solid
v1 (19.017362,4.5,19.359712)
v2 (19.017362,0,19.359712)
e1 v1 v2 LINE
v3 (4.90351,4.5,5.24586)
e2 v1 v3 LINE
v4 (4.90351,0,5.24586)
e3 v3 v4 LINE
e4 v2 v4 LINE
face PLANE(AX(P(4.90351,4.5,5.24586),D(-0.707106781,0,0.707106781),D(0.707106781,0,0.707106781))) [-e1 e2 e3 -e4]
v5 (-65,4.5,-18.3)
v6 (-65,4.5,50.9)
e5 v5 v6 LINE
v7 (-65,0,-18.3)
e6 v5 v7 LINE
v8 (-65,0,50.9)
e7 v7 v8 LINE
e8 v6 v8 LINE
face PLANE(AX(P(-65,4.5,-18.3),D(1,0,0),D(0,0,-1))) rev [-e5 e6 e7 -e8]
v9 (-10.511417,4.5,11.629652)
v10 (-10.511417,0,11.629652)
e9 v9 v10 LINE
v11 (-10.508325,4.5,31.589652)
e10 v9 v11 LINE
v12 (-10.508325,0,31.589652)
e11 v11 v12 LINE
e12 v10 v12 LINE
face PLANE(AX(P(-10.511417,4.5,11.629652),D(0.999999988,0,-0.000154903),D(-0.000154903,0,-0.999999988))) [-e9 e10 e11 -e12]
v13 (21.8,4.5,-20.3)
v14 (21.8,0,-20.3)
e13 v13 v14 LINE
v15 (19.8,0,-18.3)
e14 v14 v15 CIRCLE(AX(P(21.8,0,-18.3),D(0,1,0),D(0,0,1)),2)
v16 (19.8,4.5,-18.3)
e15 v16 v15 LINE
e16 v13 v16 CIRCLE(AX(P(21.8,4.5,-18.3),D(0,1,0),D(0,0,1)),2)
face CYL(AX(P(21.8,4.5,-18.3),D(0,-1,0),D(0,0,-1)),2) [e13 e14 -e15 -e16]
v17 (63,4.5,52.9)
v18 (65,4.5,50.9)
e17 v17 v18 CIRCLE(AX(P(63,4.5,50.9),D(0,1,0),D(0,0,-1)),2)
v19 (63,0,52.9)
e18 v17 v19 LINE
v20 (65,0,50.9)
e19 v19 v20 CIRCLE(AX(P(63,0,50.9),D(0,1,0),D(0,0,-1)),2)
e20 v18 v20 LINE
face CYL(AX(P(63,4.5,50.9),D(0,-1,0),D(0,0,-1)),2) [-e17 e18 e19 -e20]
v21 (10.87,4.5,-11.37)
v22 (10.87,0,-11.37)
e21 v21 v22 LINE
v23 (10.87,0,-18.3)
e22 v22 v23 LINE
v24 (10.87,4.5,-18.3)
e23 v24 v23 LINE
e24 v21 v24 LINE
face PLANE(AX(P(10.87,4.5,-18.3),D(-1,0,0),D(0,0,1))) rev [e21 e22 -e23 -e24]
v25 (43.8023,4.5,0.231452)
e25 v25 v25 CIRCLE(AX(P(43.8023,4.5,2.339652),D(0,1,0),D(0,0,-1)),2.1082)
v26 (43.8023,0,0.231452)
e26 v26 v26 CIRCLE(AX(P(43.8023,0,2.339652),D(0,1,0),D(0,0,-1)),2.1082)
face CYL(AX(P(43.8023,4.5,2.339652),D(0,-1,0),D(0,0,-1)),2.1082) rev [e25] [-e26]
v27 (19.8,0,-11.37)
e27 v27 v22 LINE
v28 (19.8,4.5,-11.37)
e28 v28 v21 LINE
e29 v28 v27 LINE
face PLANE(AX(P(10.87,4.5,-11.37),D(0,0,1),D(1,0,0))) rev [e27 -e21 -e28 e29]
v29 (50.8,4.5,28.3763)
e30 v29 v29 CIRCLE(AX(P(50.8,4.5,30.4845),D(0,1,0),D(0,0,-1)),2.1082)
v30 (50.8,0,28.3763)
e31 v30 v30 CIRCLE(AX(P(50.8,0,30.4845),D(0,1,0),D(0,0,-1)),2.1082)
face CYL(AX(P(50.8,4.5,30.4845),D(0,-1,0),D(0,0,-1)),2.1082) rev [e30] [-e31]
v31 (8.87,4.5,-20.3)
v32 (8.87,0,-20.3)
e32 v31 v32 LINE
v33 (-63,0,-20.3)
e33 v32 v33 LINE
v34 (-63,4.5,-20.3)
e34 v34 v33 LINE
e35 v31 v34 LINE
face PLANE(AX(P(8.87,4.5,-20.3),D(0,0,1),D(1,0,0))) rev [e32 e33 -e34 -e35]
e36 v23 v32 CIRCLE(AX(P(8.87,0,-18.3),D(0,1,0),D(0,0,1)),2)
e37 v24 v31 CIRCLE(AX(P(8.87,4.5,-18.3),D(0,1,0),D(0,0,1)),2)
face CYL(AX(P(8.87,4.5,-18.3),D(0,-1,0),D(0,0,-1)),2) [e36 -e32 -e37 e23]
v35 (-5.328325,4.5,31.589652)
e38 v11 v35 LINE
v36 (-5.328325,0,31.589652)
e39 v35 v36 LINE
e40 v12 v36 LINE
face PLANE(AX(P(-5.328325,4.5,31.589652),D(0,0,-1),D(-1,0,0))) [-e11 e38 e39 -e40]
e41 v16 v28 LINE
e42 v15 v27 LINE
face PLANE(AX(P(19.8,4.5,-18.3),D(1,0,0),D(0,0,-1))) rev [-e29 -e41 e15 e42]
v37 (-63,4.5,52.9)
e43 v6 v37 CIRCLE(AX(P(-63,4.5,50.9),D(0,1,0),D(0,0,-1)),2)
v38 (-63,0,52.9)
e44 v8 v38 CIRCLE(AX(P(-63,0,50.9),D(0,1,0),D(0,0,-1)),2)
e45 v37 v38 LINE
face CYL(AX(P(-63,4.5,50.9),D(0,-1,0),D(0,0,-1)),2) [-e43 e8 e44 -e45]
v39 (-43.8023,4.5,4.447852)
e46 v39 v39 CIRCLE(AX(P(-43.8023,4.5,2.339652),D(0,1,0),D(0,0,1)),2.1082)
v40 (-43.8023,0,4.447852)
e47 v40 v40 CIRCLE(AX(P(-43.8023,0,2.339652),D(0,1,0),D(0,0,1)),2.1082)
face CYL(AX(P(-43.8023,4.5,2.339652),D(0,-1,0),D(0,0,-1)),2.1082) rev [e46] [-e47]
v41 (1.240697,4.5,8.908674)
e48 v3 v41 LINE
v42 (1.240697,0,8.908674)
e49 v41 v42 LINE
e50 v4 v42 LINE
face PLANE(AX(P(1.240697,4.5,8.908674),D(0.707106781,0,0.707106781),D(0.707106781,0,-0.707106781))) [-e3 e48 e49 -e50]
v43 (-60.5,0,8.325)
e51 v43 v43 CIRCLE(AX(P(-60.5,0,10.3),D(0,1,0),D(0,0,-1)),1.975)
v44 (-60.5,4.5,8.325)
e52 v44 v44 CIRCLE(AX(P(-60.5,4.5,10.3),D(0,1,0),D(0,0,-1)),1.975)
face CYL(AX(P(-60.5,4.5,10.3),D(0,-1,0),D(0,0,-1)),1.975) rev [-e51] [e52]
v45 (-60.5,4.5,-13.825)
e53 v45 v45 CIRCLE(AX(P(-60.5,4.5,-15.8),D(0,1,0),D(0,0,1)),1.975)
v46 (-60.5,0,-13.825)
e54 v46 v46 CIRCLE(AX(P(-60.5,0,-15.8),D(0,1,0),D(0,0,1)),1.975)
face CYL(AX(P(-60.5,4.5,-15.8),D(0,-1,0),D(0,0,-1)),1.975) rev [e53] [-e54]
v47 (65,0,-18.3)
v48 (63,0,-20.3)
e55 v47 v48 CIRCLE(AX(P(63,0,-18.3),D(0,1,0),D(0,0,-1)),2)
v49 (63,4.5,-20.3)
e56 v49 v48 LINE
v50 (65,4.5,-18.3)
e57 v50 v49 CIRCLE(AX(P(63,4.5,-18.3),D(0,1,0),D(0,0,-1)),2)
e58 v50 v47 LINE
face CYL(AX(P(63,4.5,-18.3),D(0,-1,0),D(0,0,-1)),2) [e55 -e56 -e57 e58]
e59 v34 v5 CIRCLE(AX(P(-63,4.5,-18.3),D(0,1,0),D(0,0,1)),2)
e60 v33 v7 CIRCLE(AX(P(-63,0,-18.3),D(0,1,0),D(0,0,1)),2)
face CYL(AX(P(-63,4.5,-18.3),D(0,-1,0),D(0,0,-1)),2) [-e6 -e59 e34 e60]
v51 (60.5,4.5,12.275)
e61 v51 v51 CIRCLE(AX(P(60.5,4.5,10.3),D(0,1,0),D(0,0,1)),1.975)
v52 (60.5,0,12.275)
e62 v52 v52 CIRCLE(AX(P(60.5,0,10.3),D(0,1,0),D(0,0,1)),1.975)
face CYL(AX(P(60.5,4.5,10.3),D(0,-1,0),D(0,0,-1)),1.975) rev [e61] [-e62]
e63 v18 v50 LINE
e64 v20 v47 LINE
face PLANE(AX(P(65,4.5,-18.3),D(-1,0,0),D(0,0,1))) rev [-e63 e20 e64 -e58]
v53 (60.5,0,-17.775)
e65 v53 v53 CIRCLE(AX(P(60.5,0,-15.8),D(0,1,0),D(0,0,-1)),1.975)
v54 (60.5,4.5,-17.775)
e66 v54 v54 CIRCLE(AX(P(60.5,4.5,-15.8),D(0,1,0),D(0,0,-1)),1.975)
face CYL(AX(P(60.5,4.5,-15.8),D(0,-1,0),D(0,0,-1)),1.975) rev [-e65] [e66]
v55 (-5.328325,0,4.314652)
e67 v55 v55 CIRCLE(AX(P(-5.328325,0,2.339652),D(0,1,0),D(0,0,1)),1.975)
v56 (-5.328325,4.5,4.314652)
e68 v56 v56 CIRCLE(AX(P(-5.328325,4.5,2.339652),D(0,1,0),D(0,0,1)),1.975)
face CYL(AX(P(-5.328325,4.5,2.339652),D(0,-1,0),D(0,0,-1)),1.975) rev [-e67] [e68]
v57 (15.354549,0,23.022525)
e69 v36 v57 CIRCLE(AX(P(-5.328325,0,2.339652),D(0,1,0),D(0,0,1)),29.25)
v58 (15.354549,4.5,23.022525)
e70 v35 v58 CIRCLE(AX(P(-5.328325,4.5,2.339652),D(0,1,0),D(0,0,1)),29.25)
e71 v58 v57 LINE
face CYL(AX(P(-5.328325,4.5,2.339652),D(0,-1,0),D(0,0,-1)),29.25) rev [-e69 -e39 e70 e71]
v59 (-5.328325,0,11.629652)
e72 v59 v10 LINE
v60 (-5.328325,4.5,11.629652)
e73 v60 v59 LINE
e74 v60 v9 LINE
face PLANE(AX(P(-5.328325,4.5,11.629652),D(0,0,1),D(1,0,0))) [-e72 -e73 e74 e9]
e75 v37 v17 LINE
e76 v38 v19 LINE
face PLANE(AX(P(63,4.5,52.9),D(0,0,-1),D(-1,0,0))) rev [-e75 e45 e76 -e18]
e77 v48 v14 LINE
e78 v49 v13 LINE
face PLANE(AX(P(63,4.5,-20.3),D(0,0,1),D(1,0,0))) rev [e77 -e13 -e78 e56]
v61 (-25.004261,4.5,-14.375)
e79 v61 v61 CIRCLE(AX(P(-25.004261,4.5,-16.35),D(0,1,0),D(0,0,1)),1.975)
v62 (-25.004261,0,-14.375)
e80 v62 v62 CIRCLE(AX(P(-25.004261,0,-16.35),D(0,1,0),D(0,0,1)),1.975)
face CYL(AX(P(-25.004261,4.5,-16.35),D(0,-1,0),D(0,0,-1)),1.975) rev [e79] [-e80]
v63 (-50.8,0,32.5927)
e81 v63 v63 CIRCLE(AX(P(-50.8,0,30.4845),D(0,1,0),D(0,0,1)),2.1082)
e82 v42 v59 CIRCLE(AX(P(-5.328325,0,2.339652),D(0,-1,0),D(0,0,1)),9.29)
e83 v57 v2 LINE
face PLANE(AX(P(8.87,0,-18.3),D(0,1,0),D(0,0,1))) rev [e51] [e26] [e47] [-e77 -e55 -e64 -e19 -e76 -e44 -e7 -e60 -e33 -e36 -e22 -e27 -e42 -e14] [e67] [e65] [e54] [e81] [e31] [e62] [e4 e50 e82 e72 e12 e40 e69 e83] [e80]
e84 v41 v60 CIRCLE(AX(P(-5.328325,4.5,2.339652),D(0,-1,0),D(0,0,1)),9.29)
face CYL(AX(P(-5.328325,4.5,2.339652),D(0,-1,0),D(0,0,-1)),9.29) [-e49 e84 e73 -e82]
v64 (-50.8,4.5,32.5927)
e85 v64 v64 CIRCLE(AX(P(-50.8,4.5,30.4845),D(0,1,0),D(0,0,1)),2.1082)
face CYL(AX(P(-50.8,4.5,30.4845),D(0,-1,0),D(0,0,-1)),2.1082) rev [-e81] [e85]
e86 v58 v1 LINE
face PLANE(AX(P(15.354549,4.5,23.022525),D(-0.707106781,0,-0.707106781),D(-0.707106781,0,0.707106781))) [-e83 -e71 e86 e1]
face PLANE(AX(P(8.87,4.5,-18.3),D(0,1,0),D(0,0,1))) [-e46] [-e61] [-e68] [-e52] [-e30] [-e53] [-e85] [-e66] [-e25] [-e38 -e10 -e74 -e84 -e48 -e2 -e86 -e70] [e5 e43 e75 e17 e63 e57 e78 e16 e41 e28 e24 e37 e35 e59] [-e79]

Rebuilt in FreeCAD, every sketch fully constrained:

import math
import FreeCAD as App
import Part
import Sketcher
from FreeCAD import Vector
Q = App.Units.Quantity

doc = App.newDocument("Part")
body = doc.addObject("PartDesign::Body", "Body")

# Sketch on XZ plane
sketch1 = body.newObject("Sketcher::SketchObject", "Sketch")
sketch1.AttachmentSupport = (doc.getObject("XZ_Plane"), [""])
sketch1.MapMode = "FlatFace"
sketch1.addGeometry([
    Part.LineSegment(Vector(63, -20.3, 0), Vector(21.8, -20.3, 0)),  # 0
    Part.ArcOfCircle(Part.Circle(Vector(21.8, -18.3, 0), Vector(0, 0, 1), 2), math.radians(-180), math.radians(-90)),  # 1
    Part.LineSegment(Vector(19.8, -18.3, 0), Vector(19.8, -11.37, 0)),  # 2
    Part.LineSegment(Vector(19.8, -11.37, 0), Vector(10.87, -11.37, 0)),  # 3
    Part.LineSegment(Vector(10.87, -11.37, 0), Vector(10.87, -18.3, 0)),  # 4
    Part.ArcOfCircle(Part.Circle(Vector(8.87, -18.3, 0), Vector(0, 0, 1), 2), math.radians(-90), math.radians(0)),  # 5
    Part.LineSegment(Vector(8.87, -20.3, 0), Vector(-63, -20.3, 0)),  # 6
    Part.ArcOfCircle(Part.Circle(Vector(-63, -18.3, 0), Vector(0, 0, 1), 2), math.radians(-180), math.radians(-90)),  # 7
    Part.LineSegment(Vector(-65, -18.3, 0), Vector(-65, 50.9, 0)),  # 8
    Part.ArcOfCircle(Part.Circle(Vector(-63, 50.9, 0), Vector(0, 0, 1), 2), math.radians(90), math.radians(180)),  # 9
    Part.LineSegment(Vector(-63, 52.9, 0), Vector(63, 52.9, 0)),  # 10
    Part.ArcOfCircle(Part.Circle(Vector(63, 50.9, 0), Vector(0, 0, 1), 2), math.radians(0), math.radians(90)),  # 11
    Part.LineSegment(Vector(65, 50.9, 0), Vector(65, -18.3, 0)),  # 12
    Part.ArcOfCircle(Part.Circle(Vector(63, -18.3, 0), Vector(0, 0, 1), 2), math.radians(-90), math.radians(0)),  # 13
    Part.Circle(Vector(-50.8, 30.4845, 0), Vector(0, 0, 1), 2.1082),  # 14
    Part.Circle(Vector(-60.5, 10.3, 0), Vector(0, 0, 1), 1.975),  # 15
    Part.Circle(Vector(50.8, 30.4845, 0), Vector(0, 0, 1), 2.1082),  # 16
    Part.ArcOfCircle(Part.Circle(Vector(-5.328325, 2.339652, 0), Vector(0, 0, 1), 29.25), math.radians(45), math.radians(90)),  # 17
    Part.LineSegment(Vector(-5.328325, 31.589652, 0), Vector(-10.508325, 31.589652, 0)),  # 18
    Part.LineSegment(Vector(-10.508325, 31.589652, 0), Vector(-10.511417, 11.629652, 0)),  # 19
    Part.LineSegment(Vector(-10.511417, 11.629652, 0), Vector(-5.328325, 11.629652, 0)),  # 20
    Part.ArcOfCircle(Part.Circle(Vector(-5.328325, 2.339652, 0), Vector(0, 0, 1), 9.29), math.radians(45), math.radians(90)),  # 21
    Part.LineSegment(Vector(1.240697, 8.908674, 0), Vector(4.90351, 5.24586, 0)),  # 22
    Part.LineSegment(Vector(4.90351, 5.24586, 0), Vector(19.017362, 19.359712, 0)),  # 23
    Part.LineSegment(Vector(19.017362, 19.359712, 0), Vector(15.354549, 23.022525, 0)),  # 24
    Part.Circle(Vector(60.5, 10.3, 0), Vector(0, 0, 1), 1.975),  # 25
    Part.Circle(Vector(-43.8023, 2.339652, 0), Vector(0, 0, 1), 2.1082),  # 26
    Part.Circle(Vector(-5.328325, 2.339652, 0), Vector(0, 0, 1), 1.975),  # 27
    Part.Circle(Vector(-60.5, -15.8, 0), Vector(0, 0, 1), 1.975),  # 28
    Part.Circle(Vector(-25.004261, -16.35, 0), Vector(0, 0, 1), 1.975),  # 29
    Part.Circle(Vector(43.8023, 2.339652, 0), Vector(0, 0, 1), 2.1082),  # 30
    Part.Circle(Vector(60.5, -15.8, 0), Vector(0, 0, 1), 1.975),  # 31
], False)
sketch1.addConstraint([
    Sketcher.Constraint("Tangent", 0, 2, 1, 2),
    Sketcher.Constraint("Tangent", 1, 1, 2, 1),
    Sketcher.Constraint("Coincident", 2, 2, 3, 1),
    Sketcher.Constraint("Coincident", 3, 2, 4, 1),
    Sketcher.Constraint("Tangent", 4, 2, 5, 2),
    Sketcher.Constraint("Tangent", 5, 1, 6, 1),
    Sketcher.Constraint("Tangent", 6, 2, 7, 2),
    Sketcher.Constraint("Tangent", 7, 1, 8, 1),
    Sketcher.Constraint("Tangent", 8, 2, 9, 2),
    Sketcher.Constraint("Tangent", 9, 1, 10, 1),
    Sketcher.Constraint("Tangent", 10, 2, 11, 2),
    Sketcher.Constraint("Tangent", 11, 1, 12, 1),
    Sketcher.Constraint("Tangent", 12, 2, 13, 2),
    Sketcher.Constraint("Tangent", 13, 1, 0, 1),
    Sketcher.Constraint("Tangent", 17, 2, 18, 1),
    Sketcher.Constraint("Coincident", 18, 2, 19, 1),
    Sketcher.Constraint("Coincident", 19, 2, 20, 1),
    Sketcher.Constraint("Tangent", 20, 2, 21, 2),
    Sketcher.Constraint("Tangent", 21, 1, 22, 1),
    Sketcher.Constraint("Coincident", 22, 2, 23, 1),
    Sketcher.Constraint("Coincident", 23, 2, 24, 1),
    Sketcher.Constraint("Tangent", 24, 2, 17, 1),
    Sketcher.Constraint("Horizontal", 0),
    Sketcher.Constraint("Vertical", 2),
    Sketcher.Constraint("Horizontal", 3),
    Sketcher.Constraint("Vertical", 4),
    Sketcher.Constraint("Horizontal", 6),
    Sketcher.Constraint("Vertical", 8),
    Sketcher.Constraint("Horizontal", 10),
    Sketcher.Constraint("Vertical", 12),
    Sketcher.Constraint("Horizontal", 18),
    Sketcher.Constraint("Horizontal", 20),
    Sketcher.Constraint("Coincident", 21, 3, 17, 3),
    Sketcher.Constraint("Coincident", 27, 3, 17, 3),
    Sketcher.Constraint("Equal", 1, 5),
    Sketcher.Constraint("Equal", 5, 7),
    Sketcher.Constraint("Equal", 7, 9),
    Sketcher.Constraint("Equal", 9, 11),
    Sketcher.Constraint("Equal", 11, 13),
    Sketcher.Constraint("Equal", 14, 16),
    Sketcher.Constraint("Equal", 15, 25),
    Sketcher.Constraint("Equal", 16, 26),
    Sketcher.Constraint("Equal", 25, 27),
    Sketcher.Constraint("Equal", 27, 28),
    Sketcher.Constraint("Equal", 28, 29),
    Sketcher.Constraint("Equal", 26, 30),
    Sketcher.Constraint("Equal", 29, 31),
    Sketcher.Constraint("Symmetric", 7, 3, 13, 3, -2),
    Sketcher.Constraint("Symmetric", 14, 3, 16, 3, -2),
    Sketcher.Constraint("Symmetric", 15, 3, 25, 3, -2),
    Sketcher.Constraint("Symmetric", 26, 3, 30, 3, -2),
    Sketcher.Constraint("Symmetric", 28, 3, 31, 3, -2),
    Sketcher.Constraint("Perpendicular", 22, 23),
    Sketcher.Constraint("Perpendicular", 23, 24),
    Sketcher.Constraint("Horizontal", 21, 3, 26, 3),
    Sketcher.Constraint("Vertical", 15, 3, 28, 3),
    Sketcher.Constraint("Radius", 1, 2.0),
    Sketcher.Constraint("Diameter", 15, 3.95),
    Sketcher.Constraint("DistanceX", 10, 1, 10, 2, 126.0),
    Sketcher.Constraint("Angle", 22, Q("-45 deg")),
    Sketcher.Constraint("Radius", 17, 29.25),
    Sketcher.Constraint("Radius", 21, 9.29),
    Sketcher.Constraint("DistanceX", 0, 2, 0, 1, 41.2),
    Sketcher.Constraint("DistanceY", 8, 1, 8, 2, 69.2),
    Sketcher.Constraint("DistanceX", 1, 3, 16, 3, 29.0),
    Sketcher.Constraint("Diameter", 14, 4.2164),
    Sketcher.Constraint("DistanceX", 3, 2, 3, 1, 8.93),
    Sketcher.Constraint("DistanceX", 18, 2, 18, 1, 5.18),
    Sketcher.Constraint("DistanceY", 2, 1, 2, 2, 6.93),
    Sketcher.Constraint("DistanceY", 1, 3, -1, 1, 18.3),
    Sketcher.Constraint("DistanceX", 15, 3, -1, 1, 60.5),
    Sketcher.Constraint("DistanceY", -1, 1, 15, 3, 10.3),
    Sketcher.Constraint("DistanceY", 28, 3, -1, 1, 15.8),
    Sketcher.Constraint("Distance", 22, 5.18),
    Sketcher.Constraint("DistanceY", 29, 3, -1, 1, 16.35),
    Sketcher.Constraint("DistanceX", 20, 1, 20, 2, 5.183092),
    Sketcher.Constraint("DistanceY", -1, 1, 14, 3, 30.4845),
    Sketcher.Constraint("DistanceX", 26, 3, -1, 1, 43.8023),
    Sketcher.Constraint("DistanceY", -1, 1, 17, 3, 2.339652),
    Sketcher.Constraint("DistanceX", 29, 3, -1, 1, 25.004261),
    Sketcher.Constraint("DistanceX", -1, 1, 22, 2, 4.90351),
])
pad1 = body.newObject("PartDesign::Pad", "Pad")
pad1.Profile = sketch1
pad1.Length = 4.5
pad1.Reversed = True

doc.recompute()
